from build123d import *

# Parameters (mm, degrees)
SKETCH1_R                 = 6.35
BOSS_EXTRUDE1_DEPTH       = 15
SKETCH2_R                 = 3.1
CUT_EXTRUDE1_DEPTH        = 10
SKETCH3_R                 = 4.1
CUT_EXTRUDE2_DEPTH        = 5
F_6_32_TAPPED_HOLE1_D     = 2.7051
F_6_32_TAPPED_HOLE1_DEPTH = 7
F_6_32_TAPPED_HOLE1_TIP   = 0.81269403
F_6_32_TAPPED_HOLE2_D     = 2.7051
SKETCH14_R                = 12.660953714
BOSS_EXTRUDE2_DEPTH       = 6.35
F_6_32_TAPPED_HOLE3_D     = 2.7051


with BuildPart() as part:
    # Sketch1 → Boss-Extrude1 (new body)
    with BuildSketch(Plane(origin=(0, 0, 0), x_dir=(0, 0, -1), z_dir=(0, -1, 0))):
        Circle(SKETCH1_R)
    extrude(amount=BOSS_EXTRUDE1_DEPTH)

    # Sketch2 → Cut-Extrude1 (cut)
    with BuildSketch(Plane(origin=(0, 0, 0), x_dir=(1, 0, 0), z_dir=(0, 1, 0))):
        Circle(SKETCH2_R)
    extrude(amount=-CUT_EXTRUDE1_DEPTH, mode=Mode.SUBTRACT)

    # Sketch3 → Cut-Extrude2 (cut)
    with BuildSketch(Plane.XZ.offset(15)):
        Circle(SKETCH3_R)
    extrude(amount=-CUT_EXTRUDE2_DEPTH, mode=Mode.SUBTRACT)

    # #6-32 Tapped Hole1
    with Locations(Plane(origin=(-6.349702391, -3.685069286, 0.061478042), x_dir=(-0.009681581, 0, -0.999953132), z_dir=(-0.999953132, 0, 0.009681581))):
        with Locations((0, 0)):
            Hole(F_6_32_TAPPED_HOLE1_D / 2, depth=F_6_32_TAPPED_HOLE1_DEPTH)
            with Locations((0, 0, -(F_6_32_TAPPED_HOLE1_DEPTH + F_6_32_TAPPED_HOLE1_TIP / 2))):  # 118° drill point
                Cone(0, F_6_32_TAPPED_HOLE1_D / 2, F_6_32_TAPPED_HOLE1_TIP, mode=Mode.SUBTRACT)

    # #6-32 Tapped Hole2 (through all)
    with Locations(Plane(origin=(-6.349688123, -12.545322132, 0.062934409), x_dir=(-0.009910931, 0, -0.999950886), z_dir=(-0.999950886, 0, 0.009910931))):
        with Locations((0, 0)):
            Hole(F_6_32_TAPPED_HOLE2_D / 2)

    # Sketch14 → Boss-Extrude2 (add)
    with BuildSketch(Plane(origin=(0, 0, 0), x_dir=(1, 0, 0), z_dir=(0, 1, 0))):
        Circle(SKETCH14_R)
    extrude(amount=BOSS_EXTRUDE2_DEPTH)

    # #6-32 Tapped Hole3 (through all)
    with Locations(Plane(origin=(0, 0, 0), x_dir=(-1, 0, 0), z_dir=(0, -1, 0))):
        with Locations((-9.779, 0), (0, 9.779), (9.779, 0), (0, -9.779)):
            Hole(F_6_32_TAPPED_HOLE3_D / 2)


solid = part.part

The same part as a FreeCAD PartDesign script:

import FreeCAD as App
import Part
import Sketcher
Q = App.Units.Quantity

doc = App.newDocument("Part")
body = doc.addObject("PartDesign::Body", "Body")

# Sketch on XZ plane
sketch1 = body.newObject("Sketcher::SketchObject", "Sketch")
sketch1.AttachmentSupport = (doc.getObject("XZ_Plane"), [""])
sketch1.MapMode = "FlatFace"
sketch1.addGeometry(Part.Circle(App.Vector(0, 0, 0), App.Vector(0, 0, 1), 6), False)
sketch1.addConstraint([
    Sketcher.Constraint("Coincident", 0, 3, -1, 1),
    Sketcher.Constraint("Diameter", 0, Q("12.7 mm")),
])
pad1 = body.newObject("PartDesign::Pad", "Pad")
pad1.Profile = sketch1
pad1.Length = 15

# Sketch on XZ plane
sketch2 = body.newObject("Sketcher::SketchObject", "Sketch001")
sketch2.AttachmentSupport = (doc.getObject("XZ_Plane"), [""])
sketch2.MapMode = "FlatFace"
sketch2.addGeometry(Part.Circle(App.Vector(0, 0, 0), App.Vector(0, 0, 1), 3.1), False)
sketch2.addConstraint([
    Sketcher.Constraint("Coincident", 0, 3, -1, 1),
    Sketcher.Constraint("Diameter", 0, Q("6.2 mm")),
])
pocket1 = body.newObject("PartDesign::Pocket", "Pocket")
pocket1.Profile = sketch2
pocket1.Length = 10
pocket1.Reversed = True

# Sketch on XZ plane
sketch3 = body.newObject("Sketcher::SketchObject", "Sketch002")
sketch3.AttachmentSupport = (doc.getObject("XZ_Plane"), [""])
sketch3.MapMode = "FlatFace"
sketch3.AttachmentOffset = App.Placement(App.Vector(0, 0, 15), App.Rotation())
sketch3.addGeometry(Part.Circle(App.Vector(0, 0, 0), App.Vector(0, 0, 1), 4.1), False)
sketch3.addConstraint([
    Sketcher.Constraint("Coincident", 0, 3, -1, 1),
    Sketcher.Constraint("Diameter", 0, Q("8.2 mm")),
])
pocket2 = body.newObject("PartDesign::Pocket", "Pocket001")
pocket2.Profile = sketch3
pocket2.Length = 5

# Sketch on an angled plane
sketch4 = body.newObject("Sketcher::SketchObject", "Sketch003")
sketch4.Placement = App.Placement(App.Vector(-6.349702, 0, 0.061478), App.Rotation(App.Vector(-0.009681581, 0, -0.999953132), App.Vector(0, -0.999999999, 0), App.Vector(-0.999953132, 0, 0.009681581), "ZXY"))
sketch4.addGeometry(Part.Circle(App.Vector(0, 3.7, 0), App.Vector(0, 0, 1), 1.4), False)
sketch4.addConstraint([
    Sketcher.Constraint("PointOnObject", 0, 3, -2),
    Sketcher.Constraint("Diameter", 0, Q("2.7051 mm")),
    Sketcher.Constraint("DistanceY", -1, 1, 0, 3, Q("3.685069 mm")),
])
doc.recompute()
hole = body.newObject("PartDesign::Hole", "Hole")
hole.Profile = sketch4
hole.ThreadType = "None"
hole.Diameter = 2.7051
hole.DepthType = "Dimension"
hole.Depth = 7
hole.DrillPoint = "Angled"
hole.DrillPointAngle = 118

# Sketch on an angled plane
sketch5 = body.newObject("Sketcher::SketchObject", "Sketch004")
sketch5.Placement = App.Placement(App.Vector(-6.349688, 0, 0.062934), App.Rotation(App.Vector(-0.009910931, 0, -0.999950886), App.Vector(0, -1.000000001, 0), App.Vector(-0.999950886, 0, 0.009910931), "ZXY"))
sketch5.addGeometry(Part.Circle(App.Vector(0, 12.5, 0), App.Vector(0, 0, 1), 1.4), False)
sketch5.addConstraint([
    Sketcher.Constraint("PointOnObject", 0, 3, -2),
    Sketcher.Constraint("Diameter", 0, Q("2.7051 mm")),
    Sketcher.Constraint("DistanceY", -1, 1, 0, 3, Q("12.545322 mm")),
])
doc.recompute()
hole2 = body.newObject("PartDesign::Hole", "Hole001")
hole2.Profile = sketch5
hole2.ThreadType = "None"
hole2.Diameter = 2.7051
hole2.DepthType = "ThroughAll"

# Sketch on XZ plane
sketch6 = body.newObject("Sketcher::SketchObject", "Sketch005")
sketch6.AttachmentSupport = (doc.getObject("XZ_Plane"), [""])
sketch6.MapMode = "FlatFace"
sketch6.addGeometry(Part.Circle(App.Vector(0, 0, 0), App.Vector(0, 0, 1), 13), False)
sketch6.addConstraint([
    Sketcher.Constraint("Coincident", 0, 3, -1, 1),
    Sketcher.Constraint("Diameter", 0, Q("25.321907 mm")),
])
pad2 = body.newObject("PartDesign::Pad", "Pad001")
pad2.Profile = sketch6
pad2.Length = 6.35
pad2.Reversed = True

# Sketch on XZ plane
sketch7 = body.newObject("Sketcher::SketchObject", "Sketch006")
sketch7.AttachmentSupport = (doc.getObject("XZ_Plane"), [""])
sketch7.MapMode = "FlatFace"
sketch7.addGeometry([
    Part.Circle(App.Vector(9.8, 0, 0), App.Vector(0, 0, 1), 1.4),
    Part.Circle(App.Vector(0, -9.8, 0), App.Vector(0, 0, 1), 1.4),
    Part.Circle(App.Vector(-9.8, 0, 0), App.Vector(0, 0, 1), 1.4),
    Part.Circle(App.Vector(0, 9.8, 0), App.Vector(0, 0, 1), 1.4),
], False)
sketch7.addConstraint([
    Sketcher.Constraint("Equal", 0, 1),
    Sketcher.Constraint("Equal", 1, 2),
    Sketcher.Constraint("Equal", 2, 3),
    Sketcher.Constraint("Symmetric", 0, 3, 2, 3, -1, 1),
    Sketcher.Constraint("Symmetric", 1, 3, 3, 3, -1, 1),
    Sketcher.Constraint("PointOnObject", 0, 3, -1),
    Sketcher.Constraint("PointOnObject", 1, 3, -2),
    Sketcher.Constraint("Diameter", 0, Q("2.7051 mm")),
    Sketcher.Constraint("DistanceX", -1, 1, 0, 3, Q("9.779 mm")),
    Sketcher.Constraint("DistanceY", 1, 3, -1, 1, Q("9.779 mm")),
])
doc.recompute()
hole3 = body.newObject("PartDesign::Hole", "Hole002")
hole3.Profile = sketch7
hole3.ThreadType = "None"
hole3.Diameter = 2.7051
hole3.DepthType = "ThroughAll"

doc.recompute()
